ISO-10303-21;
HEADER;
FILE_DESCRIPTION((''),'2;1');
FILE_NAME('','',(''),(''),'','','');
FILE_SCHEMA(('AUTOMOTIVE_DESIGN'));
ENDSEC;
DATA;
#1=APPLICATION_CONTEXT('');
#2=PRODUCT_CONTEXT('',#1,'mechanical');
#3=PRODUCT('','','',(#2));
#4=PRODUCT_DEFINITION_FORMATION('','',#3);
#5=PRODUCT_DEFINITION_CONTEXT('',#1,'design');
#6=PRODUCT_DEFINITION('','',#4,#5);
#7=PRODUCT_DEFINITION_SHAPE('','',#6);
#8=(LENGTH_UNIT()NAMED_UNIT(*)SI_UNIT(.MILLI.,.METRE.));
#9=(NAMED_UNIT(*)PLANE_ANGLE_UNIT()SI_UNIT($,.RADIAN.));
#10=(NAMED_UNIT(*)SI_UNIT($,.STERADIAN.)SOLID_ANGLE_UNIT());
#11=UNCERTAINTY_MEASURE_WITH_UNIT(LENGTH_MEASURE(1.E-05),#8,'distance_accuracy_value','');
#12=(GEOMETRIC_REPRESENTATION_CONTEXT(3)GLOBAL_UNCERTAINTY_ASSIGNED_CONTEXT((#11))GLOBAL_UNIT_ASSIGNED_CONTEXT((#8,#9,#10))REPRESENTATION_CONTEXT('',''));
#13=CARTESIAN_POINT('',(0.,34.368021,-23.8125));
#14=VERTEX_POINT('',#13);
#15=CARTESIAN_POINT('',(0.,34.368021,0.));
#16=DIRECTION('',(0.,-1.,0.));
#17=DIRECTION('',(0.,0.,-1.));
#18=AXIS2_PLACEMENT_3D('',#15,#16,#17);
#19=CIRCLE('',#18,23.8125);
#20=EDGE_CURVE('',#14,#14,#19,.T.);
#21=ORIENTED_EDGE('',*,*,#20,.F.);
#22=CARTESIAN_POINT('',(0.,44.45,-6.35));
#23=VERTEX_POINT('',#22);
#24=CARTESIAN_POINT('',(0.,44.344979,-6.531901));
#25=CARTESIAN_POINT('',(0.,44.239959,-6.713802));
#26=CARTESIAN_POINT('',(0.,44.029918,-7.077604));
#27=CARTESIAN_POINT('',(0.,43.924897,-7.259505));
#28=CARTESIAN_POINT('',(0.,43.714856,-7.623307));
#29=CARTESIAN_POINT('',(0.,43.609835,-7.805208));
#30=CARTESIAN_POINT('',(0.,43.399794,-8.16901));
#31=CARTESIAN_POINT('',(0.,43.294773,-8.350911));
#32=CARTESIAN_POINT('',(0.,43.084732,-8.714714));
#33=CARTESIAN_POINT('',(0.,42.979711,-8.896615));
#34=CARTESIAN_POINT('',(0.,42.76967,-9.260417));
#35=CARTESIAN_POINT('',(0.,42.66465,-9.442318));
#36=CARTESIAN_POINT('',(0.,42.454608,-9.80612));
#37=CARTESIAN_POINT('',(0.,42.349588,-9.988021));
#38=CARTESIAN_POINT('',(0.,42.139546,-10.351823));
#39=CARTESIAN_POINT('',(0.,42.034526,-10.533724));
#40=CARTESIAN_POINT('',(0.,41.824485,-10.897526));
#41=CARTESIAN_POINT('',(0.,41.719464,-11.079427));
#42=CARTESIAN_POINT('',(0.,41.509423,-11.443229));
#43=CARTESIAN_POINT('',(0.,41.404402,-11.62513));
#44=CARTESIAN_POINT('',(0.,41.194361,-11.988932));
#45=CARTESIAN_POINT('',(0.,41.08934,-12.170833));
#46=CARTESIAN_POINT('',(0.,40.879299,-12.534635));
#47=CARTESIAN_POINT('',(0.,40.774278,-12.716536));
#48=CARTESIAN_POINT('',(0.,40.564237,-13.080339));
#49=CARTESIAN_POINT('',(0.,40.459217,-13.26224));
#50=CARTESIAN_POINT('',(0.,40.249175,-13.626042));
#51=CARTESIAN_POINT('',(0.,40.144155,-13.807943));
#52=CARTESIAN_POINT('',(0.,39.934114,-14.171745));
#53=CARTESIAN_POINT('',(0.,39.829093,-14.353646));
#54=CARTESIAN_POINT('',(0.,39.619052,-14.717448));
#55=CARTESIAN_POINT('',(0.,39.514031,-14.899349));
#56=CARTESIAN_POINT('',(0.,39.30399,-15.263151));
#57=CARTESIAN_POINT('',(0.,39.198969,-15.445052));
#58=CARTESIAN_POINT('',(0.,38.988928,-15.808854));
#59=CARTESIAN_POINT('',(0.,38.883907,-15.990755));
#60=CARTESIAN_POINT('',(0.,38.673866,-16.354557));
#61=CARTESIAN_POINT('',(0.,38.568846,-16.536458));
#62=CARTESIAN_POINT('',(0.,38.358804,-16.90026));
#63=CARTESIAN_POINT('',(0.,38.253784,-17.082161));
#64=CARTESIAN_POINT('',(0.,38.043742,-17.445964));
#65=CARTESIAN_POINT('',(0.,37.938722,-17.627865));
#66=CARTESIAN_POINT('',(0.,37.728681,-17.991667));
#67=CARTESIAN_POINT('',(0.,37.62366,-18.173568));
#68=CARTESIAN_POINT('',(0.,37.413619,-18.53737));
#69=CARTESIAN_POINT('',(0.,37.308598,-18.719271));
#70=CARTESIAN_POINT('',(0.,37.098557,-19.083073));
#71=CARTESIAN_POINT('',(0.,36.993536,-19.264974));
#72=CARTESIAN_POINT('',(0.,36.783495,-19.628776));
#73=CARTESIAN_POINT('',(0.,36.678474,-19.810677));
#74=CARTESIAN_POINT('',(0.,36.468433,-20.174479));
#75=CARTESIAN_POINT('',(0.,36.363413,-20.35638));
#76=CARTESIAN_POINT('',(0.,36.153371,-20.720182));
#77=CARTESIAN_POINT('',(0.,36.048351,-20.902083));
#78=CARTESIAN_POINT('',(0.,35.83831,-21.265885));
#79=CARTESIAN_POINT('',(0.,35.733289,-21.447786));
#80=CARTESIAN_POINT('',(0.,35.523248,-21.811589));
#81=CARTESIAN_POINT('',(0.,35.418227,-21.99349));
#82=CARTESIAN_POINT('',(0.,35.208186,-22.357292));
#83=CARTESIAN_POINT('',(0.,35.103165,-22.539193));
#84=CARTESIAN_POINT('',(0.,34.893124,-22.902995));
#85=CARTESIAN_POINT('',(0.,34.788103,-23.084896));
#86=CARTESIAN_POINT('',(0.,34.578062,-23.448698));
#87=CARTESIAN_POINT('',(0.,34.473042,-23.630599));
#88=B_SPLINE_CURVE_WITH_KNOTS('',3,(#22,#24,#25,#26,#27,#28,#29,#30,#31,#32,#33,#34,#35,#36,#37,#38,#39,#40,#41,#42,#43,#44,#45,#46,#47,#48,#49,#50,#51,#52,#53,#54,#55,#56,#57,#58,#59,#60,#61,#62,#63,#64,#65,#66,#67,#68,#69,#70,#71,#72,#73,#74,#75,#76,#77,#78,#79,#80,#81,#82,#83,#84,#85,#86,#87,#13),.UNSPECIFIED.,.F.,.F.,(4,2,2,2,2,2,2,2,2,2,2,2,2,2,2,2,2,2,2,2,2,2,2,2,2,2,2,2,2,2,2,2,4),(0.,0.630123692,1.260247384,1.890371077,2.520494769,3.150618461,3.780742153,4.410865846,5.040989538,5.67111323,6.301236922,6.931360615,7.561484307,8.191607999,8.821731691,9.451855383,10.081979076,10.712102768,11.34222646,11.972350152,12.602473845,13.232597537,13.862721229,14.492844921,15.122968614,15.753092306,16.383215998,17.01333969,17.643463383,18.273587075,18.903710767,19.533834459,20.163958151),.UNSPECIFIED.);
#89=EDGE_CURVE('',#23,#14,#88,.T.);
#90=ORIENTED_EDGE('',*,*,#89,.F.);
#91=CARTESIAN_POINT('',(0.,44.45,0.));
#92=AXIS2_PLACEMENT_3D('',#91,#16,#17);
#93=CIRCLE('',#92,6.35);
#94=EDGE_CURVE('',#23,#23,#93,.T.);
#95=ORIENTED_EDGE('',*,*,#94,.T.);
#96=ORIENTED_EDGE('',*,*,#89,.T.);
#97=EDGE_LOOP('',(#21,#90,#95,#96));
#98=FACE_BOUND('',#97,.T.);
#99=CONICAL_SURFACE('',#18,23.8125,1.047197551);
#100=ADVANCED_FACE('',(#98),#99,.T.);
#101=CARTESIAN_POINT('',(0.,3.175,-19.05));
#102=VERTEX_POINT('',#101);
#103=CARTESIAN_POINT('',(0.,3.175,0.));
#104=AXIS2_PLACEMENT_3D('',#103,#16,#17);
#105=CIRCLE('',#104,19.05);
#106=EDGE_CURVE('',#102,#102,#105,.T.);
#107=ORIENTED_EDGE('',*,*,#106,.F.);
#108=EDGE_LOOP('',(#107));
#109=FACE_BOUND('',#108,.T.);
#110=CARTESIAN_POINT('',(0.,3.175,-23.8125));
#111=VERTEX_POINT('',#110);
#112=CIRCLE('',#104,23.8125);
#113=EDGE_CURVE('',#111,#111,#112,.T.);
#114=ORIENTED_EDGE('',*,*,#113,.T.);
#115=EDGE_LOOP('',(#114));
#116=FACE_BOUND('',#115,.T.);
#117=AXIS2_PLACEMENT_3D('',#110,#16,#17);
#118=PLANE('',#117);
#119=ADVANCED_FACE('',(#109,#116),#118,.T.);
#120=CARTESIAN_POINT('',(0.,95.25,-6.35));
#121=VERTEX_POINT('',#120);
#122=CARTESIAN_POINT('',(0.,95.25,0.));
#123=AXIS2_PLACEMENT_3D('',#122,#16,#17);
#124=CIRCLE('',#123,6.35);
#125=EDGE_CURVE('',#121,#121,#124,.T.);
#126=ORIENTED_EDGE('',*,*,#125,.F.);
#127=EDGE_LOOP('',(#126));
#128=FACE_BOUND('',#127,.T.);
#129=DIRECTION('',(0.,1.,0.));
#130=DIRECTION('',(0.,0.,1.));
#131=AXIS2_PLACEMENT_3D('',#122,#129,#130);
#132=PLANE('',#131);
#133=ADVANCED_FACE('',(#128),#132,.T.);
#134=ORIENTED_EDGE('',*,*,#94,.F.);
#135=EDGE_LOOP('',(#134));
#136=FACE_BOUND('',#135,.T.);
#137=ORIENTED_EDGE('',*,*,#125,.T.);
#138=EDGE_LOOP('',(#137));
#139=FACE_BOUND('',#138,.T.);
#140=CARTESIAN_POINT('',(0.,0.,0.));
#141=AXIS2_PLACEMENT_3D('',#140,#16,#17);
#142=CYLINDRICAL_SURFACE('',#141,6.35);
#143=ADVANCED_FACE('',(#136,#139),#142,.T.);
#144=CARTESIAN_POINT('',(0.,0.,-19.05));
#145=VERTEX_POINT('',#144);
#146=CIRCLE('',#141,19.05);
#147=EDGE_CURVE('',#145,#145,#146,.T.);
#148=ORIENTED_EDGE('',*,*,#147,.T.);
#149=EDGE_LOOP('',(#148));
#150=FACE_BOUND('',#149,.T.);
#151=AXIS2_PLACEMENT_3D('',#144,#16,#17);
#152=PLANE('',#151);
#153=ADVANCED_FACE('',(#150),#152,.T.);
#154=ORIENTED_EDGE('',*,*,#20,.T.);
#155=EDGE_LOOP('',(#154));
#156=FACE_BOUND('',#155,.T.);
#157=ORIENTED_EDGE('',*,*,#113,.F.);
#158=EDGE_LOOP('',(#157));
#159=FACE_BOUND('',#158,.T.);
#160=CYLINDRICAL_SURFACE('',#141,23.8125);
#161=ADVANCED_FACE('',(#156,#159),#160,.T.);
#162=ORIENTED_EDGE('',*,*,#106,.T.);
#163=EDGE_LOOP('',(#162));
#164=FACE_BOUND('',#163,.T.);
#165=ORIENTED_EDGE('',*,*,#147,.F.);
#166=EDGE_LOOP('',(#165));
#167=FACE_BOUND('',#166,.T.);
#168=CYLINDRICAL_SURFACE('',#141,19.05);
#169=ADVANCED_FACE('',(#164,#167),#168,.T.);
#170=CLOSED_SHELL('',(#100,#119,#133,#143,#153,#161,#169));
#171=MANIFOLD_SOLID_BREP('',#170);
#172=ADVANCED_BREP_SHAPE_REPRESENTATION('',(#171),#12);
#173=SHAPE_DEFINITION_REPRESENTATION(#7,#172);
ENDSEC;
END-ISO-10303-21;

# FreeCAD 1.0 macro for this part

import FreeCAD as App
import Part
import Sketcher
Q = App.Units.Quantity

doc = App.newDocument("Part")
params = doc.addObject("Spreadsheet::Sheet", "Params")
for row, (alias, value) in enumerate([
    ("sketch1_width", "2 in"),
    ("sketch1_width2", "3.75 in"),
    ("sketch1_height", "0.25 in"),
    ("sketch1_height2", "0.75 in"),
    ("sketch1_width3", "0.125 in"),
    ("revolution_angle", "360 deg"),
], start=1):
    params.set(f"A{row}", alias)
    params.set(f"B{row}", "=" + value)
    params.setAlias(f"B{row}", alias)

body = doc.addObject("PartDesign::Body", "Body")

# Sketch on YZ plane
sketch1 = body.newObject("Sketcher::SketchObject", "Sketch")
sketch1.AttachmentSupport = (doc.getObject("YZ_Plane"), [""])
sketch1.MapMode = "FlatFace"
sketch1.addGeometry(Part.LineSegment(App.Vector(95.2, -6.3, 0), App.Vector(95.2, 0, 0)), False)
sketch1.addGeometry(Part.LineSegment(App.Vector(95.2, 0, 0), App.Vector(0, 0, 0)), False)
sketch1.addGeometry(Part.LineSegment(App.Vector(0, 0, 0), App.Vector(0, -19.1, 0)), False)
sketch1.addGeometry(Part.LineSegment(App.Vector(0, -19.1, 0), App.Vector(3.2, -19.1, 0)), False)
sketch1.addGeometry(Part.LineSegment(App.Vector(3.2, -19.1, 0), App.Vector(3.2, -23.8, 0)), False)
sketch1.addGeometry(Part.LineSegment(App.Vector(3.2, -23.8, 0), App.Vector(34.4, -23.8, 0)), False)
sketch1.addGeometry(Part.LineSegment(App.Vector(34.4, -23.8, 0), App.Vector(44.5, -6.3, 0)), False)
sketch1.addGeometry(Part.LineSegment(App.Vector(44.5, -6.3, 0), App.Vector(95.2, -6.3, 0)), False)
sketch1.addConstraint(Sketcher.Constraint("Coincident", 0, 2, 1, 1))
sketch1.addConstraint(Sketcher.Constraint("Coincident", 1, 2, 2, 1))
sketch1.addConstraint(Sketcher.Constraint("Coincident", 2, 2, 3, 1))
sketch1.addConstraint(Sketcher.Constraint("Coincident", 3, 2, 4, 1))
sketch1.addConstraint(Sketcher.Constraint("Coincident", 4, 2, 5, 1))
sketch1.addConstraint(Sketcher.Constraint("Coincident", 5, 2, 6, 1))
sketch1.addConstraint(Sketcher.Constraint("Coincident", 6, 2, 7, 1))
sketch1.addConstraint(Sketcher.Constraint("Coincident", 7, 2, 0, 1))
sketch1.addConstraint(Sketcher.Constraint("Vertical", 0))
sketch1.addConstraint(Sketcher.Constraint("Horizontal", 1))
sketch1.addConstraint(Sketcher.Constraint("Vertical", 2))
sketch1.addConstraint(Sketcher.Constraint("Horizontal", 3))
sketch1.addConstraint(Sketcher.Constraint("Vertical", 4))
sketch1.addConstraint(Sketcher.Constraint("Horizontal", 5))
sketch1.addConstraint(Sketcher.Constraint("Horizontal", 7))
sketch1.addConstraint(Sketcher.Constraint("Coincident", 1, 2, -1, 1))
sketch1.addConstraint(Sketcher.Constraint("DistanceX", 7, 1, 7, 2, Q("2 in")))
sketch1.addConstraint(Sketcher.Constraint("Angle", 6, Q("60 deg")))
sketch1.addConstraint(Sketcher.Constraint("DistanceX", 1, 2, 1, 1, Q("3.75 in")))
sketch1.addConstraint(Sketcher.Constraint("DistanceY", 0, 1, 0, 2, Q("0.25 in")))
sketch1.addConstraint(Sketcher.Constraint("DistanceY", 2, 2, 2, 1, Q("0.75 in")))
sketch1.addConstraint(Sketcher.Constraint("DistanceX", 3, 1, 3, 2, Q("0.125 in")))
sketch1.addConstraint(Sketcher.Constraint("DistanceY", 4, 2, 4, 1, Q("0.1875 in")))
sketch1.setExpression("Constraints[16]", "Params.sketch1_width")
sketch1.setExpression("Constraints[18]", "Params.sketch1_width2")
sketch1.setExpression("Constraints[19]", "Params.sketch1_height")
sketch1.setExpression("Constraints[20]", "Params.sketch1_height2")
sketch1.setExpression("Constraints[21]", "Params.sketch1_width3")
revolution = body.newObject("PartDesign::Revolution", "Revolution")
revolution.Profile = sketch1
revolution.ReferenceAxis = (sketch1, ["H_Axis"])
revolution.setExpression("Angle", "Params.revolution_angle")

doc.recompute()
